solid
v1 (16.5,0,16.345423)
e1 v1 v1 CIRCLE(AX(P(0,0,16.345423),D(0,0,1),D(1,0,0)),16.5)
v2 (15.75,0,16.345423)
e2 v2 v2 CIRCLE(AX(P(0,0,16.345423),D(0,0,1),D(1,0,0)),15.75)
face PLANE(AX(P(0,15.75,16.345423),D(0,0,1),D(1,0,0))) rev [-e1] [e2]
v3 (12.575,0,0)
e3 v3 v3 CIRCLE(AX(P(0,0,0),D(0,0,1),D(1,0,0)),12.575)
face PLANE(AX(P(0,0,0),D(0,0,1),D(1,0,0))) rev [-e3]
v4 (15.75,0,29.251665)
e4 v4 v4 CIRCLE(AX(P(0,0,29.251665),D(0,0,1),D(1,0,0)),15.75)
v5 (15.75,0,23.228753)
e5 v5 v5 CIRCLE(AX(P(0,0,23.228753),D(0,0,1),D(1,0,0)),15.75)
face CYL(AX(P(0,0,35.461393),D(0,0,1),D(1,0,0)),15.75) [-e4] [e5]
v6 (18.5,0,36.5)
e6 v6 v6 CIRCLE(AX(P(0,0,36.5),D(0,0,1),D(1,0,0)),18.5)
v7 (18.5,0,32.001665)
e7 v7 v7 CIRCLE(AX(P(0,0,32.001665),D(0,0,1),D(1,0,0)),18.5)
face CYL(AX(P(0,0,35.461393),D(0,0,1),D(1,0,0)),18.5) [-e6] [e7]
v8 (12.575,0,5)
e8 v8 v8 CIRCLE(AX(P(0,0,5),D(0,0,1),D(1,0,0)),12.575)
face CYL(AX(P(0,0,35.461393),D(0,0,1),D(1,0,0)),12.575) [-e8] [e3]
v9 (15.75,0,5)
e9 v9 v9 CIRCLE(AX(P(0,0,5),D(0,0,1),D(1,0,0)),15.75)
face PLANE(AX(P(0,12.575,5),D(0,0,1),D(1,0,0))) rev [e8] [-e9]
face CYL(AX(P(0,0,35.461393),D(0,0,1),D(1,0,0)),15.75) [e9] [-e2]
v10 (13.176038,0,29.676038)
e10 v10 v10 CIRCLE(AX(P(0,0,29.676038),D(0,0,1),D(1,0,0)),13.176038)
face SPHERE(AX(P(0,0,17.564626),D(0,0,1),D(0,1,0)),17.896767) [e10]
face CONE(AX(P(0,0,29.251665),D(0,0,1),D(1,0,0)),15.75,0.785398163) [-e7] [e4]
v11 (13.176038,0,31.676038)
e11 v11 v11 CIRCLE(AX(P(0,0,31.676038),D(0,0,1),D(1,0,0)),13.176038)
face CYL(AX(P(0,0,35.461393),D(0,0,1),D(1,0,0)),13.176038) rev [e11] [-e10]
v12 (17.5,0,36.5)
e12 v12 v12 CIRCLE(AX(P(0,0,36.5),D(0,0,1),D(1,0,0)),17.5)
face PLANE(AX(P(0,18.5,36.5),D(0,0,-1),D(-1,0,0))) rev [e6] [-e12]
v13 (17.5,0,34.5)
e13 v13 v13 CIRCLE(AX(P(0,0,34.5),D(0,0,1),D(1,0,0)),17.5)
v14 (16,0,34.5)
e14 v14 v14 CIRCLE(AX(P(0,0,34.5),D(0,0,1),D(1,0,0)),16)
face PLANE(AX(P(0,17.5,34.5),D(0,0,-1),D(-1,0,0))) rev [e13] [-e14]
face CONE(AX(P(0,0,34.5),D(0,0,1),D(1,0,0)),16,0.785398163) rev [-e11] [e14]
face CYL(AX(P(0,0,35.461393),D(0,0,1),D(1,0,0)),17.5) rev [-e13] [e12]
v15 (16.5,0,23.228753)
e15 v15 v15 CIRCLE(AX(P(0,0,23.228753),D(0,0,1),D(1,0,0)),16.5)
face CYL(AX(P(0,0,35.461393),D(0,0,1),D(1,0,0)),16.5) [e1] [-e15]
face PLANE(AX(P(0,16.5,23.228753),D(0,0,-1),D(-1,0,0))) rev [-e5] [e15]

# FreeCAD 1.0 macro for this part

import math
import FreeCAD as App
import Part
import Sketcher

V = App.Vector
Q = App.Units.Quantity

doc = App.newDocument("Part")
body = doc.addObject("PartDesign::Body", "Body")

# Sketch on YZ plane
sketch1 = doc.addObject("Sketcher::SketchObject", "Sketch")
body.addObject(sketch1)
sketch1.AttachmentSupport = (doc.YZ_Plane, [""])
sketch1.MapMode = "FlatFace"
sketch1.addGeometry([
    Part.LineSegment(V(0, 0, 0), V(12.575, 0, 0)),  # 0
    Part.LineSegment(V(12.575, 0, 0), V(12.575, 5, 0)),  # 1
    Part.LineSegment(V(12.575, 5, 0), V(15.75, 5, 0)),  # 2
    Part.LineSegment(V(15.75, 5, 0), V(15.75, 16.345423, 0)),  # 3
    Part.LineSegment(V(15.75, 16.345423, 0), V(16.5, 16.345423, 0)),  # 4
    Part.LineSegment(V(16.5, 16.345423, 0), V(16.5, 23.228753, 0)),  # 5
    Part.LineSegment(V(16.5, 23.228753, 0), V(15.75, 23.228753, 0)),  # 6
    Part.LineSegment(V(15.75, 23.228753, 0), V(15.75, 29.251665, 0)),  # 7
    Part.LineSegment(V(15.75, 29.251665, 0), V(18.5, 32.001665, 0)),  # 8
    Part.LineSegment(V(18.5, 32.001665, 0), V(18.5, 36.5, 0)),  # 9
    Part.LineSegment(V(18.5, 36.5, 0), V(17.5, 36.5, 0)),  # 10
    Part.LineSegment(V(17.5, 36.5, 0), V(17.5, 34.5, 0)),  # 11
    Part.LineSegment(V(17.5, 34.5, 0), V(16, 34.5, 0)),  # 12
    Part.LineSegment(V(16, 34.5, 0), V(13.176038, 31.676038, 0)),  # 13
    Part.LineSegment(V(13.176038, 31.676038, 0), V(13.176038, 29.676038, 0)),  # 14
    Part.ArcOfCircle(Part.Circle(V(0, 17.564626, 0), V(0, 0, 1), 17.896767), math.radians(42.589217), math.radians(90)),  # 15
    Part.LineSegment(V(0, 35.461393, 0), V(0, 0, 0)),  # 16
], False)
sketch1.addConstraint([
    Sketcher.Constraint("Coincident", 0, 2, 1, 1),
    Sketcher.Constraint("Coincident", 1, 2, 2, 1),
    Sketcher.Constraint("Coincident", 2, 2, 3, 1),
    Sketcher.Constraint("Coincident", 3, 2, 4, 1),
    Sketcher.Constraint("Coincident", 4, 2, 5, 1),
    Sketcher.Constraint("Coincident", 5, 2, 6, 1),
    Sketcher.Constraint("Coincident", 6, 2, 7, 1),
    Sketcher.Constraint("Coincident", 7, 2, 8, 1),
    Sketcher.Constraint("Coincident", 8, 2, 9, 1),
    Sketcher.Constraint("Coincident", 9, 2, 10, 1),
    Sketcher.Constraint("Coincident", 10, 2, 11, 1),
    Sketcher.Constraint("Coincident", 11, 2, 12, 1),
    Sketcher.Constraint("Coincident", 12, 2, 13, 1),
    Sketcher.Constraint("Coincident", 13, 2, 14, 1),
    Sketcher.Constraint("Coincident", 14, 2, 15, 1),
    Sketcher.Constraint("Coincident", 15, 2, 16, 1),
    Sketcher.Constraint("Coincident", 16, 2, 0, 1),
    Sketcher.Constraint("Horizontal", 0),
    Sketcher.Constraint("Vertical", 1),
    Sketcher.Constraint("Horizontal", 2),
    Sketcher.Constraint("Vertical", 3),
    Sketcher.Constraint("Horizontal", 4),
    Sketcher.Constraint("Vertical", 5),
    Sketcher.Constraint("Horizontal", 6),
    Sketcher.Constraint("Vertical", 7),
    Sketcher.Constraint("Vertical", 9),
    Sketcher.Constraint("Horizontal", 10),
    Sketcher.Constraint("Vertical", 11),
    Sketcher.Constraint("Horizontal", 12),
    Sketcher.Constraint("Vertical", 14),
    Sketcher.Constraint("Vertical", 16),
    Sketcher.Constraint("Coincident", 16, 2, -1, 1),
    Sketcher.Constraint("PointOnObject", 15, 3, -2),
    Sketcher.Constraint("Parallel", 8, 13),
    Sketcher.Constraint("Vertical", 3, 2, 6, 2),
    Sketcher.Constraint("Equal", 11, 14),
    Sketcher.Constraint("DistanceX", 10, 2, 10, 1, Q("1 mm")),
    Sketcher.Constraint("DistanceY", 1, 1, 1, 2, Q("5 mm")),
    Sketcher.Constraint("DistanceY", 11, 2, 11, 1, Q("2 mm")),
    Sketcher.Constraint("Angle", 8, Q("45 deg")),
    Sketcher.Constraint("DistanceX", 12, 2, 12, 1, Q("1.5 mm")),
    Sketcher.Constraint("DistanceX", -1, 1, 12, 2, Q("16 mm")),
    Sketcher.Constraint("DistanceX", 5, 2, 8, 2, Q("2 mm")),
    Sketcher.Constraint("DistanceX", 4, 1, 4, 2, Q("0.75 mm")),
    Sketcher.Constraint("DistanceY", -1, 1, 9, 2, Q("36.5 mm")),
    Sketcher.Constraint("DistanceX", 0, 1, 0, 2, Q("12.575 mm")),
    Sketcher.Constraint("Radius", 15, Q("17.896767 mm")),
    Sketcher.Constraint("DistanceY", 5, 1, 5, 2, Q("6.883329 mm")),
    Sketcher.Constraint("DistanceY", 3, 1, 3, 2, Q("11.345423 mm")),
    Sketcher.Constraint("DistanceY", 7, 1, 7, 2, Q("6.022913 mm")),
    Sketcher.Constraint("DistanceY", 16, 2, 16, 1, Q("35.461393 mm")),
])
revolution = doc.addObject("PartDesign::Revolution", "Revolution")
body.addObject(revolution)
revolution.Profile = sketch1
revolution.ReferenceAxis = (sketch1, ["V_Axis"])
revolution.Angle = 360

doc.recompute()
